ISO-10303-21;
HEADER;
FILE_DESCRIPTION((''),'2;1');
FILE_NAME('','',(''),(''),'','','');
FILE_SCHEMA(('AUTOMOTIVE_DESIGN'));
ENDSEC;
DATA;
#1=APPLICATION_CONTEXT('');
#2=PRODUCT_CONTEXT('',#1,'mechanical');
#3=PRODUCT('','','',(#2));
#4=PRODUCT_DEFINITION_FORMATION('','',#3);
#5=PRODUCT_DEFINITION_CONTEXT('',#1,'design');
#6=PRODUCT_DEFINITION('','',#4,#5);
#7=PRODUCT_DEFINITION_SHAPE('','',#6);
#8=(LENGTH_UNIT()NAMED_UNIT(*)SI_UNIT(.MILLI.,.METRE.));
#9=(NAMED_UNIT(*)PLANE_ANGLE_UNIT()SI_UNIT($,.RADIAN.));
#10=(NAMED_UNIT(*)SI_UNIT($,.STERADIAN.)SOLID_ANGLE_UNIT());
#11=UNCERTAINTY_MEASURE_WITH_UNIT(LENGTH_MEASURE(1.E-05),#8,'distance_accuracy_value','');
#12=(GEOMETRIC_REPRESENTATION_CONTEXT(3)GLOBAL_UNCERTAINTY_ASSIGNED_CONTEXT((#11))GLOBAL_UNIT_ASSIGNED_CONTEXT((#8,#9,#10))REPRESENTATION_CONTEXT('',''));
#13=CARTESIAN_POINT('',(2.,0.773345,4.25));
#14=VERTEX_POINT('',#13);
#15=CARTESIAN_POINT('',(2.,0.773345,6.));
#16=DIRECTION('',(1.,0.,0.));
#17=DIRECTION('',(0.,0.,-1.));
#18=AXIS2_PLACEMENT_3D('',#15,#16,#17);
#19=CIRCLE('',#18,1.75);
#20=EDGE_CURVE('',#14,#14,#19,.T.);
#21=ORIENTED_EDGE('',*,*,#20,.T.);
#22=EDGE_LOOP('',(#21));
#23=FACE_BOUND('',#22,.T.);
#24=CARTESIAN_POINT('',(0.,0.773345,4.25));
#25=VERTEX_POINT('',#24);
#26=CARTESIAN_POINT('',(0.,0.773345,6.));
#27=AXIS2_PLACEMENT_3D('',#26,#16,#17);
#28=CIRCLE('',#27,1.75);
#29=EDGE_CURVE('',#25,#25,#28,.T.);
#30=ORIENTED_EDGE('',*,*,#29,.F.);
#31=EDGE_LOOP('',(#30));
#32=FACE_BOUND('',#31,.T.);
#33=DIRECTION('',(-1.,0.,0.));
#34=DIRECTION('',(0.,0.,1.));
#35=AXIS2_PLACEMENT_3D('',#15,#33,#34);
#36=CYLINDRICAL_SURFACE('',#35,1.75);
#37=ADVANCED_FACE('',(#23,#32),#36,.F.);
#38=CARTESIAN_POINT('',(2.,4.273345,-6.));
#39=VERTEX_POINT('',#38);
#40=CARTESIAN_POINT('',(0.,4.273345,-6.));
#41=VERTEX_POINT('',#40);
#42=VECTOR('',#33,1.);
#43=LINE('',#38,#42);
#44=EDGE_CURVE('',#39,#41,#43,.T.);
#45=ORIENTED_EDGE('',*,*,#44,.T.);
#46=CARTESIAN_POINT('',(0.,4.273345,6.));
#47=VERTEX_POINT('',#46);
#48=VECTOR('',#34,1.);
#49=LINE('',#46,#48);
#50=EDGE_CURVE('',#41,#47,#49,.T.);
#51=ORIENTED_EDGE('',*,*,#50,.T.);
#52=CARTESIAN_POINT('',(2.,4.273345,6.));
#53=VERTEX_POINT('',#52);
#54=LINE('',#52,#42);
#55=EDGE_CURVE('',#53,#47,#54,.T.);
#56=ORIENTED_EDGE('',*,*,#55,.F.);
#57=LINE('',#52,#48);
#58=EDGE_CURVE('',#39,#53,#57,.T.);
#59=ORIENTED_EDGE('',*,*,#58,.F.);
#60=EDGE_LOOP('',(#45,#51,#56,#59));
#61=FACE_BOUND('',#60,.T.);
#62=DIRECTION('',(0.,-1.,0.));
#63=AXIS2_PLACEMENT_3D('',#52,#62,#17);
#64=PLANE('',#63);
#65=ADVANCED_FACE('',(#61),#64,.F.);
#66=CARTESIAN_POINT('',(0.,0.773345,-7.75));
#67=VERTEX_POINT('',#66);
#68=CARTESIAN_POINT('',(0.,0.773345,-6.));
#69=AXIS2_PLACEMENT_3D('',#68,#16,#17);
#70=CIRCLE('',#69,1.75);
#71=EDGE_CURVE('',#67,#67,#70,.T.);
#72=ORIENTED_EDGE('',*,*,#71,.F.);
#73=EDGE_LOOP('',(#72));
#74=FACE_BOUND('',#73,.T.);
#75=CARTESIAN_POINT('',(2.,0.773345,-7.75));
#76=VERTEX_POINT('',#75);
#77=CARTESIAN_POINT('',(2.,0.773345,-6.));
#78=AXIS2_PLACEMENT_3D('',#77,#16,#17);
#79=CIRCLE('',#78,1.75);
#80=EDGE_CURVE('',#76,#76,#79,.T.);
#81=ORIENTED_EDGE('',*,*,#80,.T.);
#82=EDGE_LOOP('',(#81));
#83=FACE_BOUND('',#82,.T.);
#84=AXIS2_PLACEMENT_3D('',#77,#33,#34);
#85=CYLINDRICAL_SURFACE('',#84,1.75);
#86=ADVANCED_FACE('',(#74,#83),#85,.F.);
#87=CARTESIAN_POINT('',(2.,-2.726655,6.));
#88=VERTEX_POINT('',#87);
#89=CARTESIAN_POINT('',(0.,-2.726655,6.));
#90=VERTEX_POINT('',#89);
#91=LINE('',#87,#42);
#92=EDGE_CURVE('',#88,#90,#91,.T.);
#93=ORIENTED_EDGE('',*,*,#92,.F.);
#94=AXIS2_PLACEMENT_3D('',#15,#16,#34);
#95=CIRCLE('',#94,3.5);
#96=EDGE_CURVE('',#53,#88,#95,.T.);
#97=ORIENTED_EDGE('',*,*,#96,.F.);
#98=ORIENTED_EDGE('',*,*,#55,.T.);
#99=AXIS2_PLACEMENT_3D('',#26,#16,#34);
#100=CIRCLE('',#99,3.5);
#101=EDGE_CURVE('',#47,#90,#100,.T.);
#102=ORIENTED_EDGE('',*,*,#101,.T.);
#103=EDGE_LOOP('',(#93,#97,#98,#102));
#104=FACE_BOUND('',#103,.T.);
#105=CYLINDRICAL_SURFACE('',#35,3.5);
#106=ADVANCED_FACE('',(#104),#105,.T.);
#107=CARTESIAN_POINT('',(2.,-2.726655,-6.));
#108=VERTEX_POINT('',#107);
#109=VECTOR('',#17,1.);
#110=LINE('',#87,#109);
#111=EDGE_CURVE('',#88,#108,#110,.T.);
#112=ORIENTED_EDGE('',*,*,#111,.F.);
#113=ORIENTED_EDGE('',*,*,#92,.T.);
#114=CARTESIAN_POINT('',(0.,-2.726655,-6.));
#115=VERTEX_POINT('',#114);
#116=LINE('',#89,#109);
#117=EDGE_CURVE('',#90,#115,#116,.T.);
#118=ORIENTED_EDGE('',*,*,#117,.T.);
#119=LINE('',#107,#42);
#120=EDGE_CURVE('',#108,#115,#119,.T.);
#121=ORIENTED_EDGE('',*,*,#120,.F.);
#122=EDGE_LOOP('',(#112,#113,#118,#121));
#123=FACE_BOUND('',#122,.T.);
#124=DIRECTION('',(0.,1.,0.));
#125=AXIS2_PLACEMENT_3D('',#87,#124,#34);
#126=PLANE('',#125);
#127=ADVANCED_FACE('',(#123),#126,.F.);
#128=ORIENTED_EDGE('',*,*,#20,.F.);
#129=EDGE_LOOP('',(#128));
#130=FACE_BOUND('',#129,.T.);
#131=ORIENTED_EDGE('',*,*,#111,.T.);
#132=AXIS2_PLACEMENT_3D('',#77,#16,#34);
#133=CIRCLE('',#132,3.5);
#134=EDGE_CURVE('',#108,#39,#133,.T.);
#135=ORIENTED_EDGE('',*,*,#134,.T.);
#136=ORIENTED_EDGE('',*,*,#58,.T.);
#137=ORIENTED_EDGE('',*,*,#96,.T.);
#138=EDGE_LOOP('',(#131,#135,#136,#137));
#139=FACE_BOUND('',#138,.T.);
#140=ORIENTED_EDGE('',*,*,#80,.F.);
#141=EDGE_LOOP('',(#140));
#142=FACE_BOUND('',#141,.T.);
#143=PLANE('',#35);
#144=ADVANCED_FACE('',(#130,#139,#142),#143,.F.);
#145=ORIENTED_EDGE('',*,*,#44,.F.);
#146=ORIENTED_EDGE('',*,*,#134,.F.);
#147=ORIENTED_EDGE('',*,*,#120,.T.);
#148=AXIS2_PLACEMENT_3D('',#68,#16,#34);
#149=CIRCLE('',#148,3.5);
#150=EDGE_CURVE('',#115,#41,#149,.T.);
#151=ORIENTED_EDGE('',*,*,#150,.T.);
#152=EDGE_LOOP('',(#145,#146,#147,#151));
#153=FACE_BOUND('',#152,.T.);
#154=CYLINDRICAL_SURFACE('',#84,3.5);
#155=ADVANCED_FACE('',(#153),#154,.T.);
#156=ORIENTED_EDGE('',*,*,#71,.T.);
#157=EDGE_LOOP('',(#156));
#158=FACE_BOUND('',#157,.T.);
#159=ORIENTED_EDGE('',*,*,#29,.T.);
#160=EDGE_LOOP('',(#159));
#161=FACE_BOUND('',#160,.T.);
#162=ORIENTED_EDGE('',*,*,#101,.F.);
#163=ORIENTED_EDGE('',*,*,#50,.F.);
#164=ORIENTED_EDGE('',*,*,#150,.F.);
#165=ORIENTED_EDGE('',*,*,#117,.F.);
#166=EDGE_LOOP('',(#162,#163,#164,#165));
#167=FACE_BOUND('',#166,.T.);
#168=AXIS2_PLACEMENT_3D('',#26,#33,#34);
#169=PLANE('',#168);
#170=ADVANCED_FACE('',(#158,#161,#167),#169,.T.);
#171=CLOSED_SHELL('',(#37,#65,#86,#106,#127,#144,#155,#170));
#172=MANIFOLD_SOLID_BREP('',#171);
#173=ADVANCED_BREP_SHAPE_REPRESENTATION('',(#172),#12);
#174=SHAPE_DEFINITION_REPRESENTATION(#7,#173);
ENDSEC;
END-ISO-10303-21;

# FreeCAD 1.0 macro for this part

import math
import FreeCAD as App
import Part
import Sketcher

V = App.Vector

doc = App.newDocument("Part")
params = doc.addObject("Spreadsheet::Sheet", "Params")
for row, (alias, value) in enumerate([
    ("sketch1_diameter", "3.5 mm"),
    ("sketch1_radius", "3.5 mm"),
    ("sketch1_height", "12 mm"),
    ("pad1_length", "2 mm"),
], start=1):
    params.set(f"A{row}", alias)
    params.set(f"B{row}", "=" + value)
    params.setAlias(f"B{row}", alias)

body = doc.addObject("PartDesign::Body", "Body")

sketch1 = doc.addObject("Sketcher::SketchObject", "Sketch")
body.addObject(sketch1)
sketch1.AttachmentSupport = (doc.YZ_Plane, [""])
sketch1.MapMode = "FlatFace"
sketch1.addGeometry([
    Part.LineSegment(V(4.273345, -6, 0), V(4.273345, 6, 0)),
    Part.ArcOfCircle(Part.Circle(V(0.773345, 6, 0), V(0, 0, 1), 3.5), math.radians(0), math.radians(180)),
    Part.LineSegment(V(-2.726655, 6, 0), V(-2.726655, -6, 0)),
    Part.ArcOfCircle(Part.Circle(V(0.773345, -6, 0), V(0, 0, 1), 3.5), math.radians(180), math.radians(360)),
    Part.Circle(V(0.773345, -6, 0), V(0, 0, 1), 1.75),
    Part.Circle(V(0.773345, 6, 0), V(0, 0, 1), 1.75),
], False)
sketch1.addConstraint([
    Sketcher.Constraint("Tangent", 0, 2, 1, 1),
    Sketcher.Constraint("Tangent", 1, 2, 2, 1),
    Sketcher.Constraint("Tangent", 2, 2, 3, 1),
    Sketcher.Constraint("Tangent", 3, 2, 0, 1),
    Sketcher.Constraint("Vertical", 0),
    Sketcher.Constraint("Vertical", 2),
    Sketcher.Constraint("Coincident", 4, 3, 3, 3),
    Sketcher.Constraint("Coincident", 5, 3, 1, 3),
    Sketcher.Constraint("Equal", 4, 5),
    Sketcher.Constraint("Diameter", 4, 3.5),
    Sketcher.Constraint("Radius", 1, 3.5),
    Sketcher.Constraint("DistanceY", 0, 1, 0, 2, 12.0),
    Sketcher.Constraint("DistanceY", -1, 1, 1, 3, 6.0),
    Sketcher.Constraint("DistanceX", -1, 1, 1, 3, 0.773345),
])
sketch1.setExpression("Constraints[9]", "Params.sketch1_diameter")
sketch1.setExpression("Constraints[10]", "Params.sketch1_radius")
sketch1.setExpression("Constraints[11]", "Params.sketch1_height")
pad1 = doc.addObject("PartDesign::Pad", "Pad")
body.addObject(pad1)
pad1.Profile = sketch1
pad1.setExpression("Length", "Params.pad1_length")

doc.recompute()
